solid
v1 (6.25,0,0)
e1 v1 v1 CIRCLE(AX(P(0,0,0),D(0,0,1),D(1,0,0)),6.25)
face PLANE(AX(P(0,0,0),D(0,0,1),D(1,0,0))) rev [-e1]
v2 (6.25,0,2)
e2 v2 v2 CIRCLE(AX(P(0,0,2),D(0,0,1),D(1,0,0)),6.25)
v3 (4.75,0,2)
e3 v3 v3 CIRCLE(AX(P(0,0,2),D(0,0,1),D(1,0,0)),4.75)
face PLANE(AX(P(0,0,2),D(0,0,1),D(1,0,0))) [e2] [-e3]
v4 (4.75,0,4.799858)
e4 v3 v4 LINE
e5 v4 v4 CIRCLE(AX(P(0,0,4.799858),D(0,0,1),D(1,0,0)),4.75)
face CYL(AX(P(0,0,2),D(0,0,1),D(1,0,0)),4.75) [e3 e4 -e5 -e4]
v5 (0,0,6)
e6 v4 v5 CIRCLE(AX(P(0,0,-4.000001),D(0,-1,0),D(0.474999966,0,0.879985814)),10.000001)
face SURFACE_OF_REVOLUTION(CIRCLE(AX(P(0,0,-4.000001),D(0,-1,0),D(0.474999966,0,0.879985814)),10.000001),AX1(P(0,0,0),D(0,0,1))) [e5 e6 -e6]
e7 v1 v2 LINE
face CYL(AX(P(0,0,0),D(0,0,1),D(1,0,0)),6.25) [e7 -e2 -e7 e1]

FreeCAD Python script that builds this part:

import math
import FreeCAD as App
import Part
import Sketcher
from FreeCAD import Vector
Q = App.Units.Quantity

doc = App.newDocument("Part")
body = doc.addObject("PartDesign::Body", "Body")

sketch1 = doc.addObject("Sketcher::SketchObject", "Sketch")
body.addObject(sketch1)
sketch1.AttachmentSupport = (doc.XZ_Plane, [""])
sketch1.MapMode = "FlatFace"
sketch1.addGeometry([
    Part.LineSegment(Vector(0, 0, 0), Vector(6.2, 0, 0)),
    Part.LineSegment(Vector(6.2, 0, 0), Vector(6.2, 2, 0)),
    Part.LineSegment(Vector(6.2, 2, 0), Vector(4.8, 2, 0)),
    Part.LineSegment(Vector(4.8, 2, 0), Vector(4.8, 4.8, 0)),
    Part.ArcOfCircle(Part.Circle(Vector(0, -4, 0), Vector(0, 0, 1), 10), math.radians(62), math.radians(90)),
    Part.LineSegment(Vector(0, 6, 0), Vector(0, 0, 0)),
], False)
sketch1.addConstraint([
    Sketcher.Constraint("Coincident", 0, 2, 1, 1),
    Sketcher.Constraint("Coincident", 1, 2, 2, 1),
    Sketcher.Constraint("Coincident", 2, 2, 3, 1),
    Sketcher.Constraint("Coincident", 3, 2, 4, 1),
    Sketcher.Constraint("Coincident", 4, 2, 5, 1),
    Sketcher.Constraint("Coincident", 5, 2, 0, 1),
    Sketcher.Constraint("Horizontal", 0),
    Sketcher.Constraint("Vertical", 1),
    Sketcher.Constraint("Horizontal", 2),
    Sketcher.Constraint("Vertical", 3),
    Sketcher.Constraint("Vertical", 5),
    Sketcher.Constraint("Coincident", 5, 2, -1, 1),
    Sketcher.Constraint("PointOnObject", 4, 3, -2),
    Sketcher.Constraint("Radius", 4, Q("10.000001 mm")),
    Sketcher.Constraint("DistanceY", 1, 1, 1, 2, Q("2 mm")),
    Sketcher.Constraint("DistanceY", 5, 2, 5, 1, Q("6 mm")),
    Sketcher.Constraint("DistanceX", 2, 2, 2, 1, Q("1.5 mm")),
    Sketcher.Constraint("DistanceX", 0, 1, 0, 2, Q("6.25 mm")),
])
revolution = doc.addObject("PartDesign::Revolution", "Revolution")
body.addObject(revolution)
revolution.Profile = sketch1
revolution.ReferenceAxis = (sketch1, ["V_Axis"])
revolution.Angle = 360

doc.recompute()
